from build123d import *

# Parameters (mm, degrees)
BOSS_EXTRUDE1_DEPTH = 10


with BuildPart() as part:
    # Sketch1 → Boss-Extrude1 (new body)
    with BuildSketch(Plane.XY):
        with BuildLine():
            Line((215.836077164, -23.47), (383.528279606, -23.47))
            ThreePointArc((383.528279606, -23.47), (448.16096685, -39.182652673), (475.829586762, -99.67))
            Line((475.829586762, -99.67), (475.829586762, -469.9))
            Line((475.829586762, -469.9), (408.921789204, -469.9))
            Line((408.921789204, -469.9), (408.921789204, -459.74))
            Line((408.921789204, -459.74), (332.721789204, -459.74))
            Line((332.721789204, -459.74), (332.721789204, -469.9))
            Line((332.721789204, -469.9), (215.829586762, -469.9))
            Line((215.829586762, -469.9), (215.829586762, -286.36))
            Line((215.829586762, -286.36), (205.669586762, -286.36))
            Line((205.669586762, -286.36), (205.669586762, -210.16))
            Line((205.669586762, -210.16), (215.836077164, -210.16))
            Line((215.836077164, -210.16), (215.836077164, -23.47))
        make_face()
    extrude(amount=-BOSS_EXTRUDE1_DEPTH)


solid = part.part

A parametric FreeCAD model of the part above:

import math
import FreeCAD as App
import Part
import Sketcher

V = App.Vector
Q = App.Units.Quantity

doc = App.newDocument("Part")
body = doc.addObject("PartDesign::Body", "Body")

# Sketch on XY plane
sketch1 = body.newObject("Sketcher::SketchObject", "Sketch")
sketch1.AttachmentSupport = (doc.getObject("XY_Plane"), [""])
sketch1.MapMode = "FlatFace"
sketch1.addGeometry(Part.LineSegment(V(384, -23, 0), V(216, -23, 0)), False)
sketch1.addGeometry(Part.LineSegment(V(216, -23, 0), V(216, -210, 0)), False)
sketch1.addGeometry(Part.LineSegment(V(216, -210, 0), V(206, -210, 0)), False)
sketch1.addGeometry(Part.LineSegment(V(206, -210, 0), V(206, -286, 0)), False)
sketch1.addGeometry(Part.LineSegment(V(206, -286, 0), V(216, -286, 0)), False)
sketch1.addGeometry(Part.LineSegment(V(216, -286, 0), V(216, -470, 0)), False)
sketch1.addGeometry(Part.LineSegment(V(216, -470, 0), V(333, -470, 0)), False)
sketch1.addGeometry(Part.LineSegment(V(333, -470, 0), V(333, -460, 0)), False)
sketch1.addGeometry(Part.LineSegment(V(333, -460, 0), V(409, -460, 0)), False)
sketch1.addGeometry(Part.LineSegment(V(409, -460, 0), V(409, -470, 0)), False)
sketch1.addGeometry(Part.LineSegment(V(409, -470, 0), V(476, -470, 0)), False)
sketch1.addGeometry(Part.LineSegment(V(476, -470, 0), V(476, -100, 0)), False)
sketch1.addGeometry(Part.ArcOfCircle(Part.Circle(V(400, -98, 0), V(0, 0, 1), 76), math.radians(-1), math.radians(102)), False)
sketch1.addConstraint(Sketcher.Constraint("Coincident", 0, 2, 1, 1))
sketch1.addConstraint(Sketcher.Constraint("Coincident", 1, 2, 2, 1))
sketch1.addConstraint(Sketcher.Constraint("Coincident", 2, 2, 3, 1))
sketch1.addConstraint(Sketcher.Constraint("Coincident", 3, 2, 4, 1))
sketch1.addConstraint(Sketcher.Constraint("Coincident", 4, 2, 5, 1))
sketch1.addConstraint(Sketcher.Constraint("Coincident", 5, 2, 6, 1))
sketch1.addConstraint(Sketcher.Constraint("Coincident", 6, 2, 7, 1))
sketch1.addConstraint(Sketcher.Constraint("Coincident", 7, 2, 8, 1))
sketch1.addConstraint(Sketcher.Constraint("Coincident", 8, 2, 9, 1))
sketch1.addConstraint(Sketcher.Constraint("Coincident", 9, 2, 10, 1))
sketch1.addConstraint(Sketcher.Constraint("Coincident", 10, 2, 11, 1))
sketch1.addConstraint(Sketcher.Constraint("Coincident", 11, 2, 12, 1))
sketch1.addConstraint(Sketcher.Constraint("Coincident", 12, 2, 0, 1))
sketch1.addConstraint(Sketcher.Constraint("Horizontal", 0))
sketch1.addConstraint(Sketcher.Constraint("Vertical", 1))
sketch1.addConstraint(Sketcher.Constraint("Horizontal", 2))
sketch1.addConstraint(Sketcher.Constraint("Vertical", 3))
sketch1.addConstraint(Sketcher.Constraint("Horizontal", 4))
sketch1.addConstraint(Sketcher.Constraint("Vertical", 5))
sketch1.addConstraint(Sketcher.Constraint("Horizontal", 6))
sketch1.addConstraint(Sketcher.Constraint("Vertical", 7))
sketch1.addConstraint(Sketcher.Constraint("Horizontal", 8))
sketch1.addConstraint(Sketcher.Constraint("Vertical", 9))
sketch1.addConstraint(Sketcher.Constraint("Horizontal", 10))
sketch1.addConstraint(Sketcher.Constraint("Vertical", 11))
sketch1.addConstraint(Sketcher.Constraint("Horizontal", 6, 2, 9, 2))
sketch1.addConstraint(Sketcher.Constraint("Equal", 8, 3))
sketch1.addConstraint(Sketcher.Constraint("Equal", 4, 7))
sketch1.addConstraint(Sketcher.Constraint("Radius", 12, Q("3 in")))
sketch1.addConstraint(Sketcher.Constraint("DistanceX", 8, 1, 8, 2, Q("3 in")))
sketch1.addConstraint(Sketcher.Constraint("DistanceX", 4, 1, 4, 2, Q("0.4 in")))
sketch1.addConstraint(Sketcher.Constraint("DistanceY", 11, 2, 0, 2, Q("3 in")))
sketch1.addConstraint(Sketcher.Constraint("DistanceY", 1, 2, 1, 1, Q("7.35 in")))
sketch1.addConstraint(Sketcher.Constraint("DistanceY", 5, 2, -1, 1, Q("18.5 in")))
sketch1.addConstraint(Sketcher.Constraint("DistanceY", 5, 2, 5, 1, 183.54))
sketch1.addConstraint(Sketcher.Constraint("DistanceX", 2, 2, 2, 1, 10.16649))
sketch1.addConstraint(Sketcher.Constraint("DistanceX", 5, 2, 10, 2, 260.0))
sketch1.addConstraint(Sketcher.Constraint("DistanceX", 0, 2, 0, 1, 167.692202))
sketch1.addConstraint(Sketcher.Constraint("DistanceX", 6, 1, 6, 2, 116.892202))
sketch1.addConstraint(Sketcher.Constraint("DistanceX", -1, 1, 12, 3, 399.649109))
pad1 = body.newObject("PartDesign::Pad", "Pad")
pad1.Profile = sketch1
pad1.Length = 10
pad1.Reversed = True

doc.recompute()
